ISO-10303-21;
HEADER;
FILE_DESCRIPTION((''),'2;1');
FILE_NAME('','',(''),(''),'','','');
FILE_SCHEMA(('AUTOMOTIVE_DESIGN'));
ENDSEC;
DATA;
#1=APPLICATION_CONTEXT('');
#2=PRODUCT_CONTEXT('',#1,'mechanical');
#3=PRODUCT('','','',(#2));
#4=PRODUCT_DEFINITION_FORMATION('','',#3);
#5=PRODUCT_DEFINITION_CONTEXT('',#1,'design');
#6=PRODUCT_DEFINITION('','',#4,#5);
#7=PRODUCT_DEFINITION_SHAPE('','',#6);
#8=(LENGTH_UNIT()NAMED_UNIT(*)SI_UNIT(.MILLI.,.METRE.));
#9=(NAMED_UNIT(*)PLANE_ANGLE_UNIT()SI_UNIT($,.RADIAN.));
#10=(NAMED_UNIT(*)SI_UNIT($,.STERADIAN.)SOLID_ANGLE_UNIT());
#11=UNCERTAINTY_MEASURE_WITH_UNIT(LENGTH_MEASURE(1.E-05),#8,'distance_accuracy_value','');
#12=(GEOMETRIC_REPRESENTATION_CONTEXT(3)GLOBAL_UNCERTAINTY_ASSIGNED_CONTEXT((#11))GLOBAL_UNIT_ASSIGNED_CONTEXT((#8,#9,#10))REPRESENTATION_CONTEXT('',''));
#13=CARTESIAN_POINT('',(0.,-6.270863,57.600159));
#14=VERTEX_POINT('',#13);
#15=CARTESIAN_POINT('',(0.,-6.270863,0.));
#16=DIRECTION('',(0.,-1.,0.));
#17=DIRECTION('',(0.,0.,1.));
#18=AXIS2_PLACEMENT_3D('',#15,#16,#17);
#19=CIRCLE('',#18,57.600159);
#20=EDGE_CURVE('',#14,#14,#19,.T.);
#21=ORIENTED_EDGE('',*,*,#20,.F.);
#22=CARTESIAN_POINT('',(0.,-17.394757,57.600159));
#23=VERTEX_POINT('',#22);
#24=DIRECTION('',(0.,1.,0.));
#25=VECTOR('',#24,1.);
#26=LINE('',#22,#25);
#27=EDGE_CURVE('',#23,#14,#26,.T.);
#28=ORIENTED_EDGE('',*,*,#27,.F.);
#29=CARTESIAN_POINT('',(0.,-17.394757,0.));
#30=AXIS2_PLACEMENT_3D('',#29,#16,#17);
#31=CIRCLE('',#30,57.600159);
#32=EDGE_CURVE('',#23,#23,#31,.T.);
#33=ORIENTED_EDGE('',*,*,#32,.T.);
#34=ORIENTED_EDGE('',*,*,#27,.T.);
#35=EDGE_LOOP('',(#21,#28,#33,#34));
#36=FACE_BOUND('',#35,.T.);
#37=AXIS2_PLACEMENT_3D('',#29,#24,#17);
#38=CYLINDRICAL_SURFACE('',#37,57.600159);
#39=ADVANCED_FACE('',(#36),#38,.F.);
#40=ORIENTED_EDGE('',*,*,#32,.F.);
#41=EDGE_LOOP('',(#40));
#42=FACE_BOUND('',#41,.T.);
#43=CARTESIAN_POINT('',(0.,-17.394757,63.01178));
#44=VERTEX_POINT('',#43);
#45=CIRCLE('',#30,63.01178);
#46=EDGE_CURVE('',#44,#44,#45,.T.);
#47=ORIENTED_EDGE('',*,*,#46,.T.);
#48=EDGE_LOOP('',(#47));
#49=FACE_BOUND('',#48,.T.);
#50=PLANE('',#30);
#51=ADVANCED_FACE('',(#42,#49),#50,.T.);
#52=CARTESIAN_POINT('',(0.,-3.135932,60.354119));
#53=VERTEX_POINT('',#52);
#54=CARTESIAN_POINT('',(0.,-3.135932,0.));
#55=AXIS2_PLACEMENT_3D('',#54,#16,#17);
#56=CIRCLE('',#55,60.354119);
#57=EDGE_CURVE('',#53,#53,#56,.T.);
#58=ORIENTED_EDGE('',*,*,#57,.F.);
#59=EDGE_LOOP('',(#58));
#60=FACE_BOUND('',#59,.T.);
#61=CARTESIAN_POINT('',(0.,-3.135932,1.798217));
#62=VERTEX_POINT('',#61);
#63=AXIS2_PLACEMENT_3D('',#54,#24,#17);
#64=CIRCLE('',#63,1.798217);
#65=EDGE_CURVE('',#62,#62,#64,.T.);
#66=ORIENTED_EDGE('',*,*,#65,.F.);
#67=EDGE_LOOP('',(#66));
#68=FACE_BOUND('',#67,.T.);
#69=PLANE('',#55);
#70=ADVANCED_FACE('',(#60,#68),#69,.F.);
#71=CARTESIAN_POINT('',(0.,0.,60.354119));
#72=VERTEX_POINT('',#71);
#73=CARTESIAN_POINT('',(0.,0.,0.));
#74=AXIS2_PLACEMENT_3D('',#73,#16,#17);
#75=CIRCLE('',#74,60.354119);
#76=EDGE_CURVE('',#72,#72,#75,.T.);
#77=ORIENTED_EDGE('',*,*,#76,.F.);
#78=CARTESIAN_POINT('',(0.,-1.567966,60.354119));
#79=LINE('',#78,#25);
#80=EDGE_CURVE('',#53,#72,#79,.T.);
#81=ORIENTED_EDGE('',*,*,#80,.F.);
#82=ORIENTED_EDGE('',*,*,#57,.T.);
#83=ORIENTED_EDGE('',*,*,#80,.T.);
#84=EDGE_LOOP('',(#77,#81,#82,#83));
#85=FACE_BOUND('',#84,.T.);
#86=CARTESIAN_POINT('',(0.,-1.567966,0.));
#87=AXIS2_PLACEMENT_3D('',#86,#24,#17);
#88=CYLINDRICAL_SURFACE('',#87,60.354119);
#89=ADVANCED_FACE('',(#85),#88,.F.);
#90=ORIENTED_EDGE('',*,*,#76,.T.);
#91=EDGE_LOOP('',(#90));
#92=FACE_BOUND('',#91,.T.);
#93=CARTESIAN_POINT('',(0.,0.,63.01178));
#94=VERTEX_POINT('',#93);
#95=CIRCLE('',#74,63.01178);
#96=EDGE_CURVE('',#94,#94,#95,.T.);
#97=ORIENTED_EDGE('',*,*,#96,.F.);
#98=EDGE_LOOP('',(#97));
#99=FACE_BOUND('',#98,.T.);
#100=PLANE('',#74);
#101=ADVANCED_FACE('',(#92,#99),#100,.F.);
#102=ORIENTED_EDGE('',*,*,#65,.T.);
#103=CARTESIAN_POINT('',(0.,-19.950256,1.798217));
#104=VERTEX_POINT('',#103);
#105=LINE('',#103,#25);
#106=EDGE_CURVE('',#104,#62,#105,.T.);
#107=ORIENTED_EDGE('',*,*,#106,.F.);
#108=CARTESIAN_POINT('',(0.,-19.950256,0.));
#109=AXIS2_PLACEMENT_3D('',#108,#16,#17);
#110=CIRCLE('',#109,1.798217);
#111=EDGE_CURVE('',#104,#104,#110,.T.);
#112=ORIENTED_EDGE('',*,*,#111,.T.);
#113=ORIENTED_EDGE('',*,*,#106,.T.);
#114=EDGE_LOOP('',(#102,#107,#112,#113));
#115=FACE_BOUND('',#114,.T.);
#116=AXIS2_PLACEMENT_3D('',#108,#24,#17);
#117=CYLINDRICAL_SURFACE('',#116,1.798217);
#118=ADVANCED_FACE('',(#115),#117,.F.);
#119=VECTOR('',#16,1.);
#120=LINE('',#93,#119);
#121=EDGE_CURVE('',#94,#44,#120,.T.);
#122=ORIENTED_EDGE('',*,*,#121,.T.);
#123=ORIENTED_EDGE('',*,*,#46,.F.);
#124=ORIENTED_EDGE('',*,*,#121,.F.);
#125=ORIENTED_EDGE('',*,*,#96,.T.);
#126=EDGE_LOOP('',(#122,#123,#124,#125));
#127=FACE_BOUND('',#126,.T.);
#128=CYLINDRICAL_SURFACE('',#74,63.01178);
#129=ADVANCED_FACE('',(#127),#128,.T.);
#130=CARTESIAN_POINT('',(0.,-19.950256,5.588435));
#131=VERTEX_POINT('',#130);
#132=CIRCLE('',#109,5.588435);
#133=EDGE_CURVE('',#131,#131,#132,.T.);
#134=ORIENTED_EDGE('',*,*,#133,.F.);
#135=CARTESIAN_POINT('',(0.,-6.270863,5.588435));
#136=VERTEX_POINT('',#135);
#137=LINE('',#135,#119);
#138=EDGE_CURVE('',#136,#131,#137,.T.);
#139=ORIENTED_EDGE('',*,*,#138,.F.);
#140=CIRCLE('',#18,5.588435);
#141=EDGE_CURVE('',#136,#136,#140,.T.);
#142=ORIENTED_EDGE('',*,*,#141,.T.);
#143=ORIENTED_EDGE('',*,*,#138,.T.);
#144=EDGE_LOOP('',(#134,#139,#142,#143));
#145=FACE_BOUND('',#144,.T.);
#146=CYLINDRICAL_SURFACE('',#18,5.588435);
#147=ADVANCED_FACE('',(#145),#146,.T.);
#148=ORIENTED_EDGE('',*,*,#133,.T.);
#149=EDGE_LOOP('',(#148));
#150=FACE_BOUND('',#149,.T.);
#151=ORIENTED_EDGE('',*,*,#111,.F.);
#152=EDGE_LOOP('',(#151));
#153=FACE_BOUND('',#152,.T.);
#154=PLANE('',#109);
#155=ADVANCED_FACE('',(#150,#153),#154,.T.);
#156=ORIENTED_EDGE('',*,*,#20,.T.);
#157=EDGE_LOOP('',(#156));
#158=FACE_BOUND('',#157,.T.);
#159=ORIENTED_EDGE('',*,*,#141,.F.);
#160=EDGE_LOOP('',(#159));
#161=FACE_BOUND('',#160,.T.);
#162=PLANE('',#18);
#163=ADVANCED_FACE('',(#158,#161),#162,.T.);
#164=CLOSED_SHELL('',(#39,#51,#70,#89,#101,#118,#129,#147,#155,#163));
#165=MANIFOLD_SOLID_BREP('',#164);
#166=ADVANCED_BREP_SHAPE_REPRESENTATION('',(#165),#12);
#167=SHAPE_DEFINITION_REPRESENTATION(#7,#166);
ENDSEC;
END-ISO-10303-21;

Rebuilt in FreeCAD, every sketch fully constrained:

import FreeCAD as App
import Part
import Sketcher
Q = App.Units.Quantity

doc = App.newDocument("Part")
body = doc.addObject("PartDesign::Body", "Body")

# Sketch on YZ plane
sketch1 = body.newObject("Sketcher::SketchObject", "Sketch")
sketch1.AttachmentSupport = (doc.getObject("YZ_Plane"), [""])
sketch1.MapMode = "FlatFace"
sketch1.addGeometry(Part.LineSegment(App.Vector(0, 1.8, 0), App.Vector(0, 63, 0)), False)
sketch1.addGeometry(Part.LineSegment(App.Vector(0, 63, 0), App.Vector(-17.4, 63, 0)), False)
sketch1.addGeometry(Part.LineSegment(App.Vector(-17.4, 63, 0), App.Vector(-17.4, 57.6, 0)), False)
sketch1.addGeometry(Part.LineSegment(App.Vector(-17.4, 57.6, 0), App.Vector(-6.3, 57.6, 0)), False)
sketch1.addGeometry(Part.LineSegment(App.Vector(-6.3, 57.6, 0), App.Vector(-6.3, 5.6, 0)), False)
sketch1.addGeometry(Part.LineSegment(App.Vector(-6.3, 5.6, 0), App.Vector(-20, 5.6, 0)), False)
sketch1.addGeometry(Part.LineSegment(App.Vector(-20, 5.6, 0), App.Vector(-20, 1.8, 0)), False)
sketch1.addGeometry(Part.LineSegment(App.Vector(-20, 1.8, 0), App.Vector(0, 1.8, 0)), False)
sketch1.addConstraint(Sketcher.Constraint("Coincident", 0, 2, 1, 1))
sketch1.addConstraint(Sketcher.Constraint("Coincident", 1, 2, 2, 1))
sketch1.addConstraint(Sketcher.Constraint("Coincident", 2, 2, 3, 1))
sketch1.addConstraint(Sketcher.Constraint("Coincident", 3, 2, 4, 1))
sketch1.addConstraint(Sketcher.Constraint("Coincident", 4, 2, 5, 1))
sketch1.addConstraint(Sketcher.Constraint("Coincident", 5, 2, 6, 1))
sketch1.addConstraint(Sketcher.Constraint("Coincident", 6, 2, 7, 1))
sketch1.addConstraint(Sketcher.Constraint("Coincident", 7, 2, 0, 1))
sketch1.addConstraint(Sketcher.Constraint("Vertical", 0))
sketch1.addConstraint(Sketcher.Constraint("Horizontal", 1))
sketch1.addConstraint(Sketcher.Constraint("Vertical", 2))
sketch1.addConstraint(Sketcher.Constraint("Horizontal", 3))
sketch1.addConstraint(Sketcher.Constraint("Vertical", 4))
sketch1.addConstraint(Sketcher.Constraint("Horizontal", 5))
sketch1.addConstraint(Sketcher.Constraint("Vertical", 6))
sketch1.addConstraint(Sketcher.Constraint("Horizontal", 7))
sketch1.addConstraint(Sketcher.Constraint("PointOnObject", 0, 2, -2))
sketch1.addConstraint(Sketcher.Constraint("DistanceY", 2, 2, 2, 1, Q("5.411621 mm")))
sketch1.addConstraint(Sketcher.Constraint("DistanceX", 5, 2, 2, 2, Q("2.555499 mm")))
sketch1.addConstraint(Sketcher.Constraint("DistanceX", 1, 2, 1, 1, Q("17.394757 mm")))
sketch1.addConstraint(Sketcher.Constraint("DistanceX", 3, 1, 3, 2, Q("11.123894 mm")))
sketch1.addConstraint(Sketcher.Constraint("DistanceY", 0, 1, 0, 2, Q("61.213563 mm")))
sketch1.addConstraint(Sketcher.Constraint("DistanceY", 4, 2, 4, 1, Q("52.011725 mm")))
sketch1.addConstraint(Sketcher.Constraint("DistanceY", -1, 1, 0, 2, Q("63.01178 mm")))
revolution = body.newObject("PartDesign::Revolution", "Revolution")
revolution.Profile = sketch1
revolution.ReferenceAxis = (sketch1, ["H_Axis"])
revolution.Angle = 360

# Sketch on YZ plane
sketch2 = body.newObject("Sketcher::SketchObject", "Sketch001")
sketch2.AttachmentSupport = (doc.getObject("YZ_Plane"), [""])
sketch2.MapMode = "FlatFace"
sketch2.addGeometry(Part.LineSegment(App.Vector(-3.1, 60.4, 0), App.Vector(-3.1, 0, 0)), False)
sketch2.addGeometry(Part.LineSegment(App.Vector(-3.1, 0, 0), App.Vector(0, 0, 0)), False)
sketch2.addGeometry(Part.LineSegment(App.Vector(0, 0, 0), App.Vector(0, 60.4, 0)), False)
sketch2.addGeometry(Part.LineSegment(App.Vector(0, 60.4, 0), App.Vector(-3.1, 60.4, 0)), False)
sketch2.addConstraint(Sketcher.Constraint("Coincident", 0, 2, 1, 1))
sketch2.addConstraint(Sketcher.Constraint("Coincident", 1, 2, 2, 1))
sketch2.addConstraint(Sketcher.Constraint("Coincident", 2, 2, 3, 1))
sketch2.addConstraint(Sketcher.Constraint("Coincident", 3, 2, 0, 1))
sketch2.addConstraint(Sketcher.Constraint("Vertical", 0))
sketch2.addConstraint(Sketcher.Constraint("Horizontal", 1))
sketch2.addConstraint(Sketcher.Constraint("Vertical", 2))
sketch2.addConstraint(Sketcher.Constraint("Horizontal", 3))
sketch2.addConstraint(Sketcher.Constraint("Coincident", 1, 2, -1, 1))
sketch2.addConstraint(Sketcher.Constraint("DistanceY", 0, 2, 0, 1, Q("60.354119 mm")))
sketch2.addConstraint(Sketcher.Constraint("DistanceX", 1, 1, 1, 2, Q("3.135932 mm")))
groove = body.newObject("PartDesign::Groove", "Groove")
groove.Profile = sketch2
groove.ReferenceAxis = (sketch2, ["H_Axis"])
groove.Angle = 360

doc.recompute()
